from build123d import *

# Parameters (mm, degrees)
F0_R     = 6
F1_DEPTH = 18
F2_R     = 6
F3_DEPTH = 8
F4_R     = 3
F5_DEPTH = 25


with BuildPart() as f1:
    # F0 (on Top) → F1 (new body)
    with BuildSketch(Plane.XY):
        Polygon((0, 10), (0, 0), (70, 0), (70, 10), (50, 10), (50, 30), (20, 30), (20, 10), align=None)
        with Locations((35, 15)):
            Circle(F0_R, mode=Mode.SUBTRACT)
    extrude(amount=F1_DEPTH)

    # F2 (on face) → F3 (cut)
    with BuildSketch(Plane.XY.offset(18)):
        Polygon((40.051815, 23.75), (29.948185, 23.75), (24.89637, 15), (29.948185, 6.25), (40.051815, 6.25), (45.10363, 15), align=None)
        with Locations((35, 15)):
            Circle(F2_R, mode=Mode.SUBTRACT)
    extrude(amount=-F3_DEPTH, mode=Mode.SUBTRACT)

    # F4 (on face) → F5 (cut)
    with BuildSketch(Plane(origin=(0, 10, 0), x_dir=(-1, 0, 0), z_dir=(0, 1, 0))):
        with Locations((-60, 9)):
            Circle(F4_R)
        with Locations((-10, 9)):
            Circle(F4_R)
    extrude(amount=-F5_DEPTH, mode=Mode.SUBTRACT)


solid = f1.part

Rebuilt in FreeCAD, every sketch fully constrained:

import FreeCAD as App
import Part
import Sketcher

V = App.Vector
Q = App.Units.Quantity


def add_polygon(sketch, points):
    """Adds a closed chain of lines whose ends are joined by coincident constraints."""
    first, n = sketch.GeometryCount, len(points)
    for a, b in zip(points, points[1:] + points[:1]):
        sketch.addGeometry(Part.LineSegment(App.Vector(*a, 0), App.Vector(*b, 0)), False)
    for i in range(n):
        sketch.addConstraint(Sketcher.Constraint("Coincident", first + i, 2, first + (i + 1) % n, 1))

doc = App.newDocument("Part")
params = doc.addObject("Spreadsheet::Sheet", "Params")
for row, (alias, value) in enumerate([
    ("sketch1_diameter", "12 mm"),
    ("sketch1_width", "70 mm"),
    ("sketch1_width2", "20 mm"),
    ("sketch1_height", "10 mm"),
    ("pad1_length", "18 mm"),
    ("sketch2_diameter", "12 mm"),
    ("pocket1_length", "8 mm"),
    ("sketch3_diameter", "6 mm"),
    ("pocket2_length", "25 mm"),
], start=1):
    params.set(f"A{row}", alias)
    params.set(f"B{row}", "=" + value)
    params.setAlias(f"B{row}", alias)

body = doc.addObject("PartDesign::Body", "Body")

sketch1 = body.newObject("Sketcher::SketchObject", "Sketch")
sketch1.AttachmentSupport = (doc.getObject("XY_Plane"), [""])
sketch1.MapMode = "FlatFace"
add_polygon(sketch1, [(0, 10), (0, 0), (70, 0), (70, 10), (50, 10), (50, 30), (20, 30), (20, 10)])
sketch1.addGeometry(Part.Circle(V(35, 15, 0), V(0, 0, 1), 6), False)
sketch1.addConstraint(Sketcher.Constraint("Vertical", 0))
sketch1.addConstraint(Sketcher.Constraint("Horizontal", 1))
sketch1.addConstraint(Sketcher.Constraint("Vertical", 2))
sketch1.addConstraint(Sketcher.Constraint("Horizontal", 3))
sketch1.addConstraint(Sketcher.Constraint("Vertical", 4))
sketch1.addConstraint(Sketcher.Constraint("Horizontal", 5))
sketch1.addConstraint(Sketcher.Constraint("Vertical", 6))
sketch1.addConstraint(Sketcher.Constraint("Horizontal", 7))
sketch1.addConstraint(Sketcher.Constraint("Coincident", 0, 2, -1, 1))
sketch1.addConstraint(Sketcher.Constraint("Horizontal", 3, 2, 6, 2))
sketch1.addConstraint(Sketcher.Constraint("Equal", 3, 7))
sketch1.addConstraint(Sketcher.Constraint("Equal", 7, 4))
sketch1.addConstraint(Sketcher.Constraint("Diameter", 8, Q("12 mm")))
sketch1.addConstraint(Sketcher.Constraint("DistanceX", 1, 1, 1, 2, Q("70 mm")))
sketch1.addConstraint(Sketcher.Constraint("DistanceX", 3, 2, 3, 1, Q("20 mm")))
sketch1.addConstraint(Sketcher.Constraint("DistanceY", 0, 2, 0, 1, Q("10 mm")))
sketch1.addConstraint(Sketcher.Constraint("DistanceX", -1, 1, 8, 3, Q("35 mm")))
sketch1.addConstraint(Sketcher.Constraint("DistanceY", -1, 1, 8, 3, Q("15 mm")))
sketch1.setExpression("Constraints[20]", "Params.sketch1_diameter")
sketch1.setExpression("Constraints[21]", "Params.sketch1_width")
sketch1.setExpression("Constraints[22]", "Params.sketch1_width2")
sketch1.setExpression("Constraints[23]", "Params.sketch1_height")
pad1 = body.newObject("PartDesign::Pad", "Pad")
pad1.Profile = sketch1
pad1.setExpression("Length", "Params.pad1_length")

sketch2 = body.newObject("Sketcher::SketchObject", "Sketch001")
sketch2.AttachmentSupport = (doc.getObject("XY_Plane"), [""])
sketch2.MapMode = "FlatFace"
sketch2.AttachmentOffset = App.Placement(V(0, 0, 18), App.Rotation())
add_polygon(sketch2, [(40.051815, 23.75), (29.948185, 23.75), (24.89637, 15), (29.948185, 6.25), (40.051815, 6.25), (45.10363, 15)])
sketch2.addGeometry(Part.Circle(V(35, 15, 0), V(0, 0, 1), 6), False)
sketch2.addConstraint(Sketcher.Constraint("Horizontal", 0))
sketch2.addConstraint(Sketcher.Constraint("Horizontal", 3))
sketch2.addConstraint(Sketcher.Constraint("Parallel", 1, 4))
sketch2.addConstraint(Sketcher.Constraint("Parallel", 2, 5))
sketch2.addConstraint(Sketcher.Constraint("Horizontal", 6, 3, 1, 2))
sketch2.addConstraint(Sketcher.Constraint("Horizontal", 1, 2, 4, 2))
sketch2.addConstraint(Sketcher.Constraint("Vertical", 0, 2, 2, 2))
sketch2.addConstraint(Sketcher.Constraint("Vertical", 3, 2, 5, 2))
sketch2.addConstraint(Sketcher.Constraint("Diameter", 6, Q("12 mm")))
sketch2.addConstraint(Sketcher.Constraint("Angle", 1, Q("-120.000001 deg")))
sketch2.addConstraint(Sketcher.Constraint("DistanceX", -1, 1, 6, 3, Q("35 mm")))
sketch2.addConstraint(Sketcher.Constraint("DistanceY", -1, 1, 6, 3, Q("15 mm")))
sketch2.addConstraint(Sketcher.Constraint("DistanceY", 2, 2, 0, 2, Q("17.5 mm")))
sketch2.addConstraint(Sketcher.Constraint("DistanceX", 0, 2, 0, 1, Q("10.10363 mm")))
sketch2.addConstraint(Sketcher.Constraint("DistanceX", -1, 1, 1, 2, Q("24.89637 mm")))
sketch2.setExpression("Constraints[14]", "Params.sketch2_diameter")
pocket1 = body.newObject("PartDesign::Pocket", "Pocket")
pocket1.Profile = sketch2
pocket1.setExpression("Length", "Params.pocket1_length")

sketch3 = body.newObject("Sketcher::SketchObject", "Sketch002")
sketch3.AttachmentSupport = (doc.getObject("XZ_Plane"), [""])
sketch3.MapMode = "FlatFace"
sketch3.AttachmentOffset = App.Placement(V(0, 0, -10), App.Rotation())
sketch3.addGeometry(Part.Circle(V(60, 9, 0), V(0, 0, 1), 3), False)
sketch3.addGeometry(Part.Circle(V(10, 9, 0), V(0, 0, 1), 3), False)
sketch3.addConstraint(Sketcher.Constraint("Equal", 0, 1))
sketch3.addConstraint(Sketcher.Constraint("Horizontal", 0, 3, 1, 3))
sketch3.addConstraint(Sketcher.Constraint("Diameter", 0, Q("6 mm")))
sketch3.addConstraint(Sketcher.Constraint("DistanceX", -1, 1, 0, 3, Q("60 mm")))
sketch3.addConstraint(Sketcher.Constraint("DistanceY", -1, 1, 0, 3, Q("9 mm")))
sketch3.addConstraint(Sketcher.Constraint("DistanceX", -1, 1, 1, 3, Q("10 mm")))
sketch3.setExpression("Constraints[2]", "Params.sketch3_diameter")
pocket2 = body.newObject("PartDesign::Pocket", "Pocket001")
pocket2.Profile = sketch3
pocket2.setExpression("Length", "Params.pocket2_length")
pocket2.Reversed = True

doc.recompute()
